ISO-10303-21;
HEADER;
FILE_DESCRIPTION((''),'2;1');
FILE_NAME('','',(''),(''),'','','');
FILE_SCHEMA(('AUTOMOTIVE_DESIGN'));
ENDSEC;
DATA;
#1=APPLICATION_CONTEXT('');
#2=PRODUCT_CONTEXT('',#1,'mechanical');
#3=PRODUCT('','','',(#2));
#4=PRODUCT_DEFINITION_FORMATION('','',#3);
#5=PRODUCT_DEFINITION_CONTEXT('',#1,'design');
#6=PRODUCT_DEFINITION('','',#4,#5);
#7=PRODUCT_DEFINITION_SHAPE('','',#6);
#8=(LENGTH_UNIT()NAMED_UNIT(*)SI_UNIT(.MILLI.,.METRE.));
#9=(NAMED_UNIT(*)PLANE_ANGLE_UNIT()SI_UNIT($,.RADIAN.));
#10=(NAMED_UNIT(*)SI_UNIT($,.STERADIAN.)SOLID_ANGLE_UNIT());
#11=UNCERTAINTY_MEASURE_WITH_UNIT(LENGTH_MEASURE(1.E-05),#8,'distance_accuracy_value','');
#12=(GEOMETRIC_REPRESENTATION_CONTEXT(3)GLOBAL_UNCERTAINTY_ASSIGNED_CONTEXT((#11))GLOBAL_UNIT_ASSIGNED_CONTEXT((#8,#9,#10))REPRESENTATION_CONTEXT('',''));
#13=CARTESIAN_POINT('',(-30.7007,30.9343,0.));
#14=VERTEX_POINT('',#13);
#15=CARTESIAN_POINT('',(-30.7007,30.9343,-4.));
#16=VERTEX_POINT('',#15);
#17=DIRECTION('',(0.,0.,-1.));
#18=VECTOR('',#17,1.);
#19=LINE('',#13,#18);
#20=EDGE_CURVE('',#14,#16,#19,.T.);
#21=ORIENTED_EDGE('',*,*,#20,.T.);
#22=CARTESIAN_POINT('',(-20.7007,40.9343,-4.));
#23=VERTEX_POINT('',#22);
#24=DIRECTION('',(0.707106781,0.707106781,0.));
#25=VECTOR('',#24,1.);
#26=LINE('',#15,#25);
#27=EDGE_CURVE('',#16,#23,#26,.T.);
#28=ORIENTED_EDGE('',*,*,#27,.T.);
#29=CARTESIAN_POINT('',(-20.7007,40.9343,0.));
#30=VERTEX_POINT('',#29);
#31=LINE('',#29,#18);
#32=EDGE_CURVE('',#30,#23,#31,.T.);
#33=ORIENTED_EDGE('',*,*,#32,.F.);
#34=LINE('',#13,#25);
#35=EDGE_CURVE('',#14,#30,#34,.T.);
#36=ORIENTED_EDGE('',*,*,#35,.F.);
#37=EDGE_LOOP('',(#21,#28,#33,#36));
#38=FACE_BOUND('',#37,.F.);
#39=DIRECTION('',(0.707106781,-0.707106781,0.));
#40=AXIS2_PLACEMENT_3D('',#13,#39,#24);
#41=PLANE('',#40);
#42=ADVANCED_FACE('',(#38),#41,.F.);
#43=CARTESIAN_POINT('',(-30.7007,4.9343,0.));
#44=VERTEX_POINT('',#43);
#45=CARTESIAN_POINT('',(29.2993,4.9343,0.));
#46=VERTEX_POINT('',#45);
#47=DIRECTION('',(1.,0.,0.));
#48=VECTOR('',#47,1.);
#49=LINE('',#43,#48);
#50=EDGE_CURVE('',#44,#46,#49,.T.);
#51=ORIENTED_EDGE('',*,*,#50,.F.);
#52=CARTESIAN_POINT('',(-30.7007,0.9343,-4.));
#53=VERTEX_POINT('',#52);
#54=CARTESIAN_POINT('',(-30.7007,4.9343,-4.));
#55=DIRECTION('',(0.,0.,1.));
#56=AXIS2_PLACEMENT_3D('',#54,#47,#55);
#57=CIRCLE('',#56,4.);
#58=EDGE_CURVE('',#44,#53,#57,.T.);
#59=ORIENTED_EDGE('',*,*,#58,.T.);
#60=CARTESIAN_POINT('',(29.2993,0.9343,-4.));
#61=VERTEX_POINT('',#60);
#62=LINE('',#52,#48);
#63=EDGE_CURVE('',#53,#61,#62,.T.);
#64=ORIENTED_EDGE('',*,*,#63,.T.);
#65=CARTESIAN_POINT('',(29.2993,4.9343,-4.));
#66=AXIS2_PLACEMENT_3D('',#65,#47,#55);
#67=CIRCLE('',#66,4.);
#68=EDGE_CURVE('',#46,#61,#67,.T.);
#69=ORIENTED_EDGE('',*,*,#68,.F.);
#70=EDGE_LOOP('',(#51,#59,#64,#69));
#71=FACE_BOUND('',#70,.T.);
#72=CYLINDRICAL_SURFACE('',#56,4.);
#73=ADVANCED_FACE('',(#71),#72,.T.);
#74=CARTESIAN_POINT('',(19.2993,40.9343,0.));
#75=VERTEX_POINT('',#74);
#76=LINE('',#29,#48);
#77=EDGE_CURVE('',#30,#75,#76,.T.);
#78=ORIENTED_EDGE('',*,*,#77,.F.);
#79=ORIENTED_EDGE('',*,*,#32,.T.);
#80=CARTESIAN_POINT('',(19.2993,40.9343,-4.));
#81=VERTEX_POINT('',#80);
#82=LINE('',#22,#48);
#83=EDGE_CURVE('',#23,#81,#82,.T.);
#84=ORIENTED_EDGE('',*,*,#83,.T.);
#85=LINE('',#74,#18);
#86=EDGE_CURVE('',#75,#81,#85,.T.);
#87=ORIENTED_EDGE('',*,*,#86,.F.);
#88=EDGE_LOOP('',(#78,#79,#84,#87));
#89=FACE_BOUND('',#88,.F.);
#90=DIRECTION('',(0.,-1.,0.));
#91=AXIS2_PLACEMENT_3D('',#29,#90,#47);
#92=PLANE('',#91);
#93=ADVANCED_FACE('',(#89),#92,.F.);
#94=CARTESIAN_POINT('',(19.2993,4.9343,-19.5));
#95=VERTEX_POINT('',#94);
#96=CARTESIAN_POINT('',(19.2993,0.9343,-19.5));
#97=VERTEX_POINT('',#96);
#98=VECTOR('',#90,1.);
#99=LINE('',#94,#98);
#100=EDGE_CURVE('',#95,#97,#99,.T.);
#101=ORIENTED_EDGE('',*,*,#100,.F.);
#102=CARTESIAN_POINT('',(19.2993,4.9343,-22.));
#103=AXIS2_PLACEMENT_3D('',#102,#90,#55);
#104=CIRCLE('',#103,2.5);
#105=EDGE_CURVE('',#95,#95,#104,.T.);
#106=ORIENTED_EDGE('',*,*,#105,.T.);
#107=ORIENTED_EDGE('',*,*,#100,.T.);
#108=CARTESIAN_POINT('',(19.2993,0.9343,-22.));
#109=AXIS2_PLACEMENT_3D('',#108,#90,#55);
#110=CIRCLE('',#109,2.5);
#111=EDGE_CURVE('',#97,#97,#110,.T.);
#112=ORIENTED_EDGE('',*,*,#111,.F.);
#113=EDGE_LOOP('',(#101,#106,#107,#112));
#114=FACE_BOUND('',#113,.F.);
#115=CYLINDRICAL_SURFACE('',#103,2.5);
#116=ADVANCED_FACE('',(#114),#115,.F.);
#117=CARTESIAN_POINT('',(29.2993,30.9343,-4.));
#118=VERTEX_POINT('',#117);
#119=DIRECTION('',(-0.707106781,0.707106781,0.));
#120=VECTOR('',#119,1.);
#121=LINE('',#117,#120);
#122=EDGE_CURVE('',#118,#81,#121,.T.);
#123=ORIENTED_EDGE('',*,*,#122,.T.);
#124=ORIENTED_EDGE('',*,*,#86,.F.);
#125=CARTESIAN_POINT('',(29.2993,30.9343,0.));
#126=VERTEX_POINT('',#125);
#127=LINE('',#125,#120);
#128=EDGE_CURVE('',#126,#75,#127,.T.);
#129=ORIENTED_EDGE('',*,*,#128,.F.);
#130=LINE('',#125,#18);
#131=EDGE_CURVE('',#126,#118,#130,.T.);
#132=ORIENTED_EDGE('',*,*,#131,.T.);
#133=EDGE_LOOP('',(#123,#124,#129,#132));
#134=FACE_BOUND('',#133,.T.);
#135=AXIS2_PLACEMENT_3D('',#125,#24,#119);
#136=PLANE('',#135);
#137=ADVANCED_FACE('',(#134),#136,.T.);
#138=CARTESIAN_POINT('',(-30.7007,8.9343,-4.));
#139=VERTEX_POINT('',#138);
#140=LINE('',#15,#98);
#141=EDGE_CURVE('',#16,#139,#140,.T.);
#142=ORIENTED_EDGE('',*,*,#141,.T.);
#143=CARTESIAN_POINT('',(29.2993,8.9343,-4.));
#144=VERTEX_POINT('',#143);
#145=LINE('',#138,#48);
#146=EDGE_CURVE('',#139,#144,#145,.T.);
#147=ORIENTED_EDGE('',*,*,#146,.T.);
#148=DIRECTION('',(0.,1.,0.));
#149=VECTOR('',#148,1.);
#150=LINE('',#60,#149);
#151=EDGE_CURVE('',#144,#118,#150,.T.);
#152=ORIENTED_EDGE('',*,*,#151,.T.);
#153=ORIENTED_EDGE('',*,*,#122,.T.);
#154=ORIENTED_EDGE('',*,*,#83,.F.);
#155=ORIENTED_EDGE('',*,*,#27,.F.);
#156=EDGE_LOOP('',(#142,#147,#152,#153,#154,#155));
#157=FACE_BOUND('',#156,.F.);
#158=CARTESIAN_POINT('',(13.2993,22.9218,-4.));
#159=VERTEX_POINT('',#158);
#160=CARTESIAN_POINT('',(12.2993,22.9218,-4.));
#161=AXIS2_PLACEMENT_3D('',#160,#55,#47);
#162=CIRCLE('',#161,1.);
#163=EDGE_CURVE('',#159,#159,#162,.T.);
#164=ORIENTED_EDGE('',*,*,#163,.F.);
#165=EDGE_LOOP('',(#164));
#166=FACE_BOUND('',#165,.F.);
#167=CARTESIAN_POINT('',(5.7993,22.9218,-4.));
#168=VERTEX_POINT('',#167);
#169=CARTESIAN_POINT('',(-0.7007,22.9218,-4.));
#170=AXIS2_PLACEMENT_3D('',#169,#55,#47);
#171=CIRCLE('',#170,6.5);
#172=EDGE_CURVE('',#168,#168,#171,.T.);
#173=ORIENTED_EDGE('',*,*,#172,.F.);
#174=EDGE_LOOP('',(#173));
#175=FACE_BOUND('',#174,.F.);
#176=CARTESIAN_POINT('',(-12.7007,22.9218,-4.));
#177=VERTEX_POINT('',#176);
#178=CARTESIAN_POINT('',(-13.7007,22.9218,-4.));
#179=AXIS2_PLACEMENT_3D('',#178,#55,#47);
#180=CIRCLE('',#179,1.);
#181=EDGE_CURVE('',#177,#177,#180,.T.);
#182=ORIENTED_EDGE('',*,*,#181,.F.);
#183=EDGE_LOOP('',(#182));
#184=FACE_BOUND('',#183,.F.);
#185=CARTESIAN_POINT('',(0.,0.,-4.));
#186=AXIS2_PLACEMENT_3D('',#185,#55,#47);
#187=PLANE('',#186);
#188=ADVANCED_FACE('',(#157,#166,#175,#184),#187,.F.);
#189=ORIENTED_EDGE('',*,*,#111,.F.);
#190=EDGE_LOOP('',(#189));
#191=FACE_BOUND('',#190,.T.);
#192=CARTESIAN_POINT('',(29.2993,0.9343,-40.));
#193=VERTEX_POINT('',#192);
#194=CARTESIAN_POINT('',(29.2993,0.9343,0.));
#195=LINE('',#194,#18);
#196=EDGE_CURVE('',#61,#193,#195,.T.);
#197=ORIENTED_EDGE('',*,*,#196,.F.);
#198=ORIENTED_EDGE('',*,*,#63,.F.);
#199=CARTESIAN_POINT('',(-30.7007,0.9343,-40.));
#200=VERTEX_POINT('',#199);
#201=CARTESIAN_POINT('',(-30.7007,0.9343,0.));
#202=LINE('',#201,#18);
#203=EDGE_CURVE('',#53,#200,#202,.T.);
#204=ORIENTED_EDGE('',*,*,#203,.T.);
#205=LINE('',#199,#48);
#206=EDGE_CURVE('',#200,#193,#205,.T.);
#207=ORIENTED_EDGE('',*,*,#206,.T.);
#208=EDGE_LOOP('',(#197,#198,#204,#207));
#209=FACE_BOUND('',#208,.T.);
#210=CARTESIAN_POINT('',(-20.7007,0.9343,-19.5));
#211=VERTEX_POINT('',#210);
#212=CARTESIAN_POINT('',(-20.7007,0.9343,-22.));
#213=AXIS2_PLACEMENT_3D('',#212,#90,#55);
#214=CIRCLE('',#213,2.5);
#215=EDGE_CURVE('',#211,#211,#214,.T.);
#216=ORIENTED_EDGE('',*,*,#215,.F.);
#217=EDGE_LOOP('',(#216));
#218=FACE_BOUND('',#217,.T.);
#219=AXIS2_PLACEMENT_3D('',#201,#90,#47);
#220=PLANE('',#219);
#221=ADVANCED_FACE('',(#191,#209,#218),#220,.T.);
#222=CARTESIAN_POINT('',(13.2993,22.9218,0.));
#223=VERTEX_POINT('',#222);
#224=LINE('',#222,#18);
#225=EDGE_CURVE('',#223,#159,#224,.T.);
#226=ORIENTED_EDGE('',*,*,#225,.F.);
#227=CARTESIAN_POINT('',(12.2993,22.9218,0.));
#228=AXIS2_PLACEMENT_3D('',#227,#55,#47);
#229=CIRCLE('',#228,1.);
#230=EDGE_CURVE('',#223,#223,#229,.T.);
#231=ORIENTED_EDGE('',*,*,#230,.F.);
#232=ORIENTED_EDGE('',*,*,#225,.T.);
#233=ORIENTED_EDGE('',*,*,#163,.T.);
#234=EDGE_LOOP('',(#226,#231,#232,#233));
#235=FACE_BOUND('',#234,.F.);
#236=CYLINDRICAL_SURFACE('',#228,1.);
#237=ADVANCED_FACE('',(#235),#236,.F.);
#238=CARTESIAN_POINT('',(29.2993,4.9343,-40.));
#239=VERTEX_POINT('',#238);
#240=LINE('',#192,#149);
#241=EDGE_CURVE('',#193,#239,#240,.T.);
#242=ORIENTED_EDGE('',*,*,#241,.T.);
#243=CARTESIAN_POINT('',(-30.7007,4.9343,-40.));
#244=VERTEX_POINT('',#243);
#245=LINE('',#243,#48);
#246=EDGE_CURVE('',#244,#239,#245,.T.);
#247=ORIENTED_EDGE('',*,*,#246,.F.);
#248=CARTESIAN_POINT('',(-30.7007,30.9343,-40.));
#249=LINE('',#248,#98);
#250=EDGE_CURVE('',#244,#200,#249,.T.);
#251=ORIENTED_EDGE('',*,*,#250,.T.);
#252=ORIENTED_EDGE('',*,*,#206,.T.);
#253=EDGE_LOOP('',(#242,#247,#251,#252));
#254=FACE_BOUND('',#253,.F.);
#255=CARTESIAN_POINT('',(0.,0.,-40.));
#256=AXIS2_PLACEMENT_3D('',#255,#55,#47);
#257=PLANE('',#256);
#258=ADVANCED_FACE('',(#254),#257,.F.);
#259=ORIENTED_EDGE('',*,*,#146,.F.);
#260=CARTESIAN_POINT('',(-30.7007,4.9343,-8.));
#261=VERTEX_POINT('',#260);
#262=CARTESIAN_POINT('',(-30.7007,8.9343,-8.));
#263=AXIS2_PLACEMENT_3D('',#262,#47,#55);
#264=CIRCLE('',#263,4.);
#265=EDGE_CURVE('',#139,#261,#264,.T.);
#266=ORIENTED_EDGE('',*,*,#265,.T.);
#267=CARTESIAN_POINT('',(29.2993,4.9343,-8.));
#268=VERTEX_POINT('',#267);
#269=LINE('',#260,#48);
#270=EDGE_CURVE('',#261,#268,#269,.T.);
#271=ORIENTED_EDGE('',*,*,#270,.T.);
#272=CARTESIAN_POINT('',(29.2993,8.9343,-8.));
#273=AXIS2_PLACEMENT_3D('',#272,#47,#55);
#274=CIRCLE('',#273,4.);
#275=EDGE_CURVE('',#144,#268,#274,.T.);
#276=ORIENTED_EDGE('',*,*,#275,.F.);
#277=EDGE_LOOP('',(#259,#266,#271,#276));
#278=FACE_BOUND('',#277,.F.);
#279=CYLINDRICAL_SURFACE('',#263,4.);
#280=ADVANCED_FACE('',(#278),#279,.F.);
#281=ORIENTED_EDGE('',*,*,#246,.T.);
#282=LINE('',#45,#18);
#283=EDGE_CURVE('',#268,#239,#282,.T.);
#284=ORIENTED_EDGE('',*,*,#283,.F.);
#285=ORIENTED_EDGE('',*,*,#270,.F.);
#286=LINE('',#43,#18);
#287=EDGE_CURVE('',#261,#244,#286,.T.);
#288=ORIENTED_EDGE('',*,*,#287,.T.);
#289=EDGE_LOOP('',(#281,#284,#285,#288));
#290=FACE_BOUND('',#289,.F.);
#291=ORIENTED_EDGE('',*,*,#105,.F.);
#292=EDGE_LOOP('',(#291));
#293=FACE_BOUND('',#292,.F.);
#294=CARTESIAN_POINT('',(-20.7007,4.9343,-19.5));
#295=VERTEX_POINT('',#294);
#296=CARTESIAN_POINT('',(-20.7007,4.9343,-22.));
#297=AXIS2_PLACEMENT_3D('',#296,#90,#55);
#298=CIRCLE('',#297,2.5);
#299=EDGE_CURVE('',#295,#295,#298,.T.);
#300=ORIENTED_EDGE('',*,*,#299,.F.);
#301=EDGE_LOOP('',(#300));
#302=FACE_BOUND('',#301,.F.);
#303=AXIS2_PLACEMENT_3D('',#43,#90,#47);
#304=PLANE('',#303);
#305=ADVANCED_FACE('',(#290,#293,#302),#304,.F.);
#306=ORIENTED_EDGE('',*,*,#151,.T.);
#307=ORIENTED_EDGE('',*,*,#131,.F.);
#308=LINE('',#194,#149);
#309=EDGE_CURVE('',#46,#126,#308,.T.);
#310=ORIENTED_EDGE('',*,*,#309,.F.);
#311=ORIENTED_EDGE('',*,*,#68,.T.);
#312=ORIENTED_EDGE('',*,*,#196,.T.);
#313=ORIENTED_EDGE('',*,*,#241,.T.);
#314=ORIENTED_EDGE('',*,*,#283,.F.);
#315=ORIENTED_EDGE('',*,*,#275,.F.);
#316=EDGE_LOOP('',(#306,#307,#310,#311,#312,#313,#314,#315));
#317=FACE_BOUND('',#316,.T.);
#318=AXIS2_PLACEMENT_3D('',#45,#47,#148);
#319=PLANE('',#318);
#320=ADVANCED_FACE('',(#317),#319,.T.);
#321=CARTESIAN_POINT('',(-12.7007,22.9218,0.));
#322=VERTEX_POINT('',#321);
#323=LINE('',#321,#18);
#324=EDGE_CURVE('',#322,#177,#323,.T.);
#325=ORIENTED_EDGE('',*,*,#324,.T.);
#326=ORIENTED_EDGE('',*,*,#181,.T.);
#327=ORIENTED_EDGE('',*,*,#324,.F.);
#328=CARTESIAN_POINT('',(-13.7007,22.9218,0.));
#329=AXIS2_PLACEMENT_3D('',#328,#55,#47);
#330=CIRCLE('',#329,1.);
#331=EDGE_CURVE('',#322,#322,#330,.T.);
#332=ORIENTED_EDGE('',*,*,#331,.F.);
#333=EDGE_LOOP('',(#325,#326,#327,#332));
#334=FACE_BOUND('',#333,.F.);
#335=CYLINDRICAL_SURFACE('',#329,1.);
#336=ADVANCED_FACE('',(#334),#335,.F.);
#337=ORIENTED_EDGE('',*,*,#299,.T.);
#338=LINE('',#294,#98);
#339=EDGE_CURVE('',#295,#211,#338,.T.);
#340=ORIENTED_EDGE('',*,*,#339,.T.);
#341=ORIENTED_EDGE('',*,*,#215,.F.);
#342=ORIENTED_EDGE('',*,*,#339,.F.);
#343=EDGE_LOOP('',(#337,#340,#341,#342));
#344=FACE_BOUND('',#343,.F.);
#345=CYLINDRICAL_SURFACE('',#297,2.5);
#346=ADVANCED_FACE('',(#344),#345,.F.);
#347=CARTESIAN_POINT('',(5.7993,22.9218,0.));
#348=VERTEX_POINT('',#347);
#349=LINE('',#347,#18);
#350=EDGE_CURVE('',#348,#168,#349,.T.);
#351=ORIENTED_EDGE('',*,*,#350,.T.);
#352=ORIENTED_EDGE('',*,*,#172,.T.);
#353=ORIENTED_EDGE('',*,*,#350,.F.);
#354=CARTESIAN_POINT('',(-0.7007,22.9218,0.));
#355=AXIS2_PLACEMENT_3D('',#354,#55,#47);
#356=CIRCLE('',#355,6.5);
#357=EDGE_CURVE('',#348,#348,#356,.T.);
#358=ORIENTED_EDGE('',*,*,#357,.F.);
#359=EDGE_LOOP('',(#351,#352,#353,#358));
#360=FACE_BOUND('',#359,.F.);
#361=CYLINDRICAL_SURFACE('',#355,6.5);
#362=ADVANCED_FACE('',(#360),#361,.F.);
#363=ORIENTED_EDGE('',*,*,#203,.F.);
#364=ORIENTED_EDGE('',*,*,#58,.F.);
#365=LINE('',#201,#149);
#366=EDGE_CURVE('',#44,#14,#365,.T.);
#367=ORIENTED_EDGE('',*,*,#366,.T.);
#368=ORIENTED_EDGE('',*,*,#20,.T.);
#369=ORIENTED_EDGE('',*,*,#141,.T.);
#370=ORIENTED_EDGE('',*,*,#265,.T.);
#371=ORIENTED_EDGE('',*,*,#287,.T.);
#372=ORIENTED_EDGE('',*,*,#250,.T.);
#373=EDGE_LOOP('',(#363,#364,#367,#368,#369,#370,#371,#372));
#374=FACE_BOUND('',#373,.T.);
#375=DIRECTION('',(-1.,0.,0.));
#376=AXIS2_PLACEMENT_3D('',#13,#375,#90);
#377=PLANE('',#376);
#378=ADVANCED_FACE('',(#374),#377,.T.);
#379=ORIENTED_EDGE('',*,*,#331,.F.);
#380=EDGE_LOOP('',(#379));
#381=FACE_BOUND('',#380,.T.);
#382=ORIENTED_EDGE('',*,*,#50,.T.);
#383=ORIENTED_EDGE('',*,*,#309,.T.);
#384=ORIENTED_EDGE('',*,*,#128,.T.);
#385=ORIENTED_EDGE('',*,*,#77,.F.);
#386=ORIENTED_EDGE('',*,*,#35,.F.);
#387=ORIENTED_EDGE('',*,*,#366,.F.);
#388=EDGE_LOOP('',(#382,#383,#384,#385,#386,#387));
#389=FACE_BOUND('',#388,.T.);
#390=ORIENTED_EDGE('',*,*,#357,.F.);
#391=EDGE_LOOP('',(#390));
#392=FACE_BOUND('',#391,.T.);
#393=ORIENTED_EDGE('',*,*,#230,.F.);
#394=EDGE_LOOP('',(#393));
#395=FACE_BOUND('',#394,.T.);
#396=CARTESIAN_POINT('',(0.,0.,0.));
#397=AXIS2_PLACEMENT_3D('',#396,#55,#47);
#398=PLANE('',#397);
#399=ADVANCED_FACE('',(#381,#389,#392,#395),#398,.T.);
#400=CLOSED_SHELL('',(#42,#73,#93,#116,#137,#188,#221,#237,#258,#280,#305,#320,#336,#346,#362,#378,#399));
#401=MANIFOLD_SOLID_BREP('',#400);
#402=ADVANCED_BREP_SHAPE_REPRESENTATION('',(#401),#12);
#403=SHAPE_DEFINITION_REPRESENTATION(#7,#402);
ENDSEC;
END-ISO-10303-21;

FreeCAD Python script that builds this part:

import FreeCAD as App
import Part
import Sketcher

V = App.Vector
Q = App.Units.Quantity


def edges_at(feature, points):
    """Names of the edges that pass closest to the given points."""
    edges = feature.Shape.Edges
    near = lambda p: min(range(len(edges)), key=lambda i: edges[i].distToShape(Part.Vertex(*p))[0])
    return sorted({f"Edge{near(p) + 1}" for p in points})

doc = App.newDocument("Part")
params = doc.addObject("Spreadsheet::Sheet", "Params")
for row, (alias, value) in enumerate([
    ("sketch1_diameter", "2 mm"),
    ("sketch1_diameter2", "13 mm"),
    ("sketch1_width", "60 mm"),
    ("sketch1_width2", "40 mm"),
    ("sketch1_height", "26 mm"),
    ("pad1_length", "4 mm"),
    ("sketch2_width", "60 mm"),
    ("sketch2_height", "4 mm"),
    ("pad2_length", "40 mm"),
    ("sketch3_diameter", "5 mm"),
    ("hole_diameter", "5 mm"),
    ("fillet_radius", "4 mm"),
    ("fillet2_radius", "4 mm"),
], start=1):
    params.set(f"A{row}", alias)
    params.set(f"B{row}", "=" + value)
    params.setAlias(f"B{row}", alias)

body = doc.addObject("PartDesign::Body", "Body")

# Sketch on XY plane
sketch1 = body.newObject("Sketcher::SketchObject", "Sketch")
sketch1.AttachmentSupport = (doc.getObject("XY_Plane"), [""])
sketch1.MapMode = "FlatFace"
sketch1.addGeometry([
    Part.LineSegment(V(-30.7, 30.9, 0), V(-30.7, 4.9, 0)),  # 0
    Part.LineSegment(V(-30.7, 4.9, 0), V(29.3, 4.9, 0)),  # 1
    Part.LineSegment(V(29.3, 4.9, 0), V(29.3, 30.9, 0)),  # 2
    Part.LineSegment(V(29.3, 30.9, 0), V(19.3, 40.9, 0)),  # 3
    Part.LineSegment(V(19.3, 40.9, 0), V(-20.7, 40.9, 0)),  # 4
    Part.LineSegment(V(-20.7, 40.9, 0), V(-30.7, 30.9, 0)),  # 5
    Part.Circle(V(-13.7, 22.9, 0), V(0, 0, 1), 1),  # 6
    Part.Circle(V(-0.7, 22.9, 0), V(0, 0, 1), 6.5),  # 7
    Part.Circle(V(12.3, 22.9, 0), V(0, 0, 1), 1),  # 8
], False)
sketch1.addConstraint([
    Sketcher.Constraint("Coincident", 0, 2, 1, 1),
    Sketcher.Constraint("Coincident", 1, 2, 2, 1),
    Sketcher.Constraint("Coincident", 2, 2, 3, 1),
    Sketcher.Constraint("Coincident", 3, 2, 4, 1),
    Sketcher.Constraint("Coincident", 4, 2, 5, 1),
    Sketcher.Constraint("Coincident", 5, 2, 0, 1),
    Sketcher.Constraint("Vertical", 0),
    Sketcher.Constraint("Horizontal", 1),
    Sketcher.Constraint("Vertical", 2),
    Sketcher.Constraint("Horizontal", 4),
    Sketcher.Constraint("Equal", 6, 8),
    Sketcher.Constraint("Perpendicular", 3, 5),
    Sketcher.Constraint("Horizontal", 6, 3, 7, 3),
    Sketcher.Constraint("Horizontal", 7, 3, 8, 3),
    Sketcher.Constraint("Horizontal", 2, 2, 5, 2),
    Sketcher.Constraint("Equal", 3, 5),
    Sketcher.Constraint("Diameter", 6, Q("2 mm")),
    Sketcher.Constraint("Diameter", 7, Q("13 mm")),
    Sketcher.Constraint("DistanceX", 1, 1, 1, 2, Q("60 mm")),
    Sketcher.Constraint("DistanceX", 4, 2, 4, 1, Q("40 mm")),
    Sketcher.Constraint("DistanceX", 6, 3, 7, 3, Q("13 mm")),
    Sketcher.Constraint("DistanceX", 7, 3, 8, 3, Q("13 mm")),
    Sketcher.Constraint("DistanceX", 0, 2, 7, 3, Q("30 mm")),
    Sketcher.Constraint("DistanceY", 0, 2, 0, 1, Q("26 mm")),
    Sketcher.Constraint("DistanceX", 6, 3, -1, 1, Q("13.7007 mm")),
    Sketcher.Constraint("DistanceY", -1, 1, 6, 3, Q("22.9218 mm")),
    Sketcher.Constraint("DistanceY", -1, 1, 0, 2, Q("4.9343 mm")),
])
sketch1.setExpression("Constraints[16]", "Params.sketch1_diameter")
sketch1.setExpression("Constraints[17]", "Params.sketch1_diameter2")
sketch1.setExpression("Constraints[18]", "Params.sketch1_width")
sketch1.setExpression("Constraints[19]", "Params.sketch1_width2")
sketch1.setExpression("Constraints[23]", "Params.sketch1_height")
pad1 = body.newObject("PartDesign::Pad", "Pad")
pad1.Profile = sketch1
pad1.setExpression("Length", "Params.pad1_length")
pad1.Reversed = True

# Sketch on XY plane
sketch2 = body.newObject("Sketcher::SketchObject", "Sketch001")
sketch2.AttachmentSupport = (doc.getObject("XY_Plane"), [""])
sketch2.MapMode = "FlatFace"
sketch2.addGeometry([
    Part.LineSegment(V(-30.7, 4.9, 0), V(-30.7, 0.9, 0)),
    Part.LineSegment(V(-30.7, 0.9, 0), V(29.3, 0.9, 0)),
    Part.LineSegment(V(29.3, 0.9, 0), V(29.3, 4.9, 0)),
    Part.LineSegment(V(29.3, 4.9, 0), V(-30.7, 4.9, 0)),
], False)
sketch2.addConstraint([
    Sketcher.Constraint("Coincident", 0, 2, 1, 1),
    Sketcher.Constraint("Coincident", 1, 2, 2, 1),
    Sketcher.Constraint("Coincident", 2, 2, 3, 1),
    Sketcher.Constraint("Coincident", 3, 2, 0, 1),
    Sketcher.Constraint("Vertical", 0),
    Sketcher.Constraint("Horizontal", 1),
    Sketcher.Constraint("Vertical", 2),
    Sketcher.Constraint("Horizontal", 3),
    Sketcher.Constraint("DistanceX", 1, 1, 1, 2, Q("60 mm")),
    Sketcher.Constraint("DistanceY", 0, 2, 0, 1, Q("4 mm")),
    Sketcher.Constraint("DistanceX", 0, 2, -1, 1, Q("30.7007 mm")),
    Sketcher.Constraint("DistanceY", -1, 1, 0, 2, Q("0.9343 mm")),
])
sketch2.setExpression("Constraints[8]", "Params.sketch2_width")
sketch2.setExpression("Constraints[9]", "Params.sketch2_height")
pad2 = body.newObject("PartDesign::Pad", "Pad001")
pad2.Profile = sketch2
pad2.setExpression("Length", "Params.pad2_length")
pad2.Reversed = True

# Sketch on XZ plane
sketch3 = body.newObject("Sketcher::SketchObject", "Sketch002")
sketch3.AttachmentSupport = (doc.getObject("XZ_Plane"), [""])
sketch3.MapMode = "FlatFace"
sketch3.AttachmentOffset = App.Placement(V(0, 0, -4.9343), App.Rotation())
sketch3.addGeometry([
    Part.Circle(V(19.3, -22, 0), V(0, 0, 1), 2.5),
    Part.Circle(V(-20.7, -22, 0), V(0, 0, 1), 2.5),
], False)
sketch3.addConstraint([
    Sketcher.Constraint("Equal", 0, 1),
    Sketcher.Constraint("Horizontal", 0, 3, 1, 3),
    Sketcher.Constraint("Diameter", 0, Q("5 mm")),
    Sketcher.Constraint("DistanceY", 0, 3, -1, 1, Q("22 mm")),
    Sketcher.Constraint("DistanceX", 1, 3, 0, 3, Q("40 mm")),
    Sketcher.Constraint("DistanceX", -1, 1, 0, 3, Q("19.2993 mm")),
])
sketch3.setExpression("Constraints[2]", "Params.sketch3_diameter")
doc.recompute()
hole = body.newObject("PartDesign::Hole", "Hole")
hole.Profile = sketch3
hole.ThreadType = "None"
hole.setExpression("Diameter", "Params.hole_diameter")
hole.DepthType = "ThroughAll"
hole.Reversed = True
doc.recompute()

fillet = body.newObject("PartDesign::Fillet", "Fillet")
fillet.Base = (hole, edges_at(hole, [(-0.701, 4.934, -4)]))
fillet.setExpression("Radius", "Params.fillet_radius")
doc.recompute()

fillet2 = body.newObject("PartDesign::Fillet", "Fillet001")
fillet2.Base = (fillet, edges_at(fillet, [(-0.701, 0.934, 0)]))
fillet2.setExpression("Radius", "Params.fillet2_radius")

doc.recompute()
